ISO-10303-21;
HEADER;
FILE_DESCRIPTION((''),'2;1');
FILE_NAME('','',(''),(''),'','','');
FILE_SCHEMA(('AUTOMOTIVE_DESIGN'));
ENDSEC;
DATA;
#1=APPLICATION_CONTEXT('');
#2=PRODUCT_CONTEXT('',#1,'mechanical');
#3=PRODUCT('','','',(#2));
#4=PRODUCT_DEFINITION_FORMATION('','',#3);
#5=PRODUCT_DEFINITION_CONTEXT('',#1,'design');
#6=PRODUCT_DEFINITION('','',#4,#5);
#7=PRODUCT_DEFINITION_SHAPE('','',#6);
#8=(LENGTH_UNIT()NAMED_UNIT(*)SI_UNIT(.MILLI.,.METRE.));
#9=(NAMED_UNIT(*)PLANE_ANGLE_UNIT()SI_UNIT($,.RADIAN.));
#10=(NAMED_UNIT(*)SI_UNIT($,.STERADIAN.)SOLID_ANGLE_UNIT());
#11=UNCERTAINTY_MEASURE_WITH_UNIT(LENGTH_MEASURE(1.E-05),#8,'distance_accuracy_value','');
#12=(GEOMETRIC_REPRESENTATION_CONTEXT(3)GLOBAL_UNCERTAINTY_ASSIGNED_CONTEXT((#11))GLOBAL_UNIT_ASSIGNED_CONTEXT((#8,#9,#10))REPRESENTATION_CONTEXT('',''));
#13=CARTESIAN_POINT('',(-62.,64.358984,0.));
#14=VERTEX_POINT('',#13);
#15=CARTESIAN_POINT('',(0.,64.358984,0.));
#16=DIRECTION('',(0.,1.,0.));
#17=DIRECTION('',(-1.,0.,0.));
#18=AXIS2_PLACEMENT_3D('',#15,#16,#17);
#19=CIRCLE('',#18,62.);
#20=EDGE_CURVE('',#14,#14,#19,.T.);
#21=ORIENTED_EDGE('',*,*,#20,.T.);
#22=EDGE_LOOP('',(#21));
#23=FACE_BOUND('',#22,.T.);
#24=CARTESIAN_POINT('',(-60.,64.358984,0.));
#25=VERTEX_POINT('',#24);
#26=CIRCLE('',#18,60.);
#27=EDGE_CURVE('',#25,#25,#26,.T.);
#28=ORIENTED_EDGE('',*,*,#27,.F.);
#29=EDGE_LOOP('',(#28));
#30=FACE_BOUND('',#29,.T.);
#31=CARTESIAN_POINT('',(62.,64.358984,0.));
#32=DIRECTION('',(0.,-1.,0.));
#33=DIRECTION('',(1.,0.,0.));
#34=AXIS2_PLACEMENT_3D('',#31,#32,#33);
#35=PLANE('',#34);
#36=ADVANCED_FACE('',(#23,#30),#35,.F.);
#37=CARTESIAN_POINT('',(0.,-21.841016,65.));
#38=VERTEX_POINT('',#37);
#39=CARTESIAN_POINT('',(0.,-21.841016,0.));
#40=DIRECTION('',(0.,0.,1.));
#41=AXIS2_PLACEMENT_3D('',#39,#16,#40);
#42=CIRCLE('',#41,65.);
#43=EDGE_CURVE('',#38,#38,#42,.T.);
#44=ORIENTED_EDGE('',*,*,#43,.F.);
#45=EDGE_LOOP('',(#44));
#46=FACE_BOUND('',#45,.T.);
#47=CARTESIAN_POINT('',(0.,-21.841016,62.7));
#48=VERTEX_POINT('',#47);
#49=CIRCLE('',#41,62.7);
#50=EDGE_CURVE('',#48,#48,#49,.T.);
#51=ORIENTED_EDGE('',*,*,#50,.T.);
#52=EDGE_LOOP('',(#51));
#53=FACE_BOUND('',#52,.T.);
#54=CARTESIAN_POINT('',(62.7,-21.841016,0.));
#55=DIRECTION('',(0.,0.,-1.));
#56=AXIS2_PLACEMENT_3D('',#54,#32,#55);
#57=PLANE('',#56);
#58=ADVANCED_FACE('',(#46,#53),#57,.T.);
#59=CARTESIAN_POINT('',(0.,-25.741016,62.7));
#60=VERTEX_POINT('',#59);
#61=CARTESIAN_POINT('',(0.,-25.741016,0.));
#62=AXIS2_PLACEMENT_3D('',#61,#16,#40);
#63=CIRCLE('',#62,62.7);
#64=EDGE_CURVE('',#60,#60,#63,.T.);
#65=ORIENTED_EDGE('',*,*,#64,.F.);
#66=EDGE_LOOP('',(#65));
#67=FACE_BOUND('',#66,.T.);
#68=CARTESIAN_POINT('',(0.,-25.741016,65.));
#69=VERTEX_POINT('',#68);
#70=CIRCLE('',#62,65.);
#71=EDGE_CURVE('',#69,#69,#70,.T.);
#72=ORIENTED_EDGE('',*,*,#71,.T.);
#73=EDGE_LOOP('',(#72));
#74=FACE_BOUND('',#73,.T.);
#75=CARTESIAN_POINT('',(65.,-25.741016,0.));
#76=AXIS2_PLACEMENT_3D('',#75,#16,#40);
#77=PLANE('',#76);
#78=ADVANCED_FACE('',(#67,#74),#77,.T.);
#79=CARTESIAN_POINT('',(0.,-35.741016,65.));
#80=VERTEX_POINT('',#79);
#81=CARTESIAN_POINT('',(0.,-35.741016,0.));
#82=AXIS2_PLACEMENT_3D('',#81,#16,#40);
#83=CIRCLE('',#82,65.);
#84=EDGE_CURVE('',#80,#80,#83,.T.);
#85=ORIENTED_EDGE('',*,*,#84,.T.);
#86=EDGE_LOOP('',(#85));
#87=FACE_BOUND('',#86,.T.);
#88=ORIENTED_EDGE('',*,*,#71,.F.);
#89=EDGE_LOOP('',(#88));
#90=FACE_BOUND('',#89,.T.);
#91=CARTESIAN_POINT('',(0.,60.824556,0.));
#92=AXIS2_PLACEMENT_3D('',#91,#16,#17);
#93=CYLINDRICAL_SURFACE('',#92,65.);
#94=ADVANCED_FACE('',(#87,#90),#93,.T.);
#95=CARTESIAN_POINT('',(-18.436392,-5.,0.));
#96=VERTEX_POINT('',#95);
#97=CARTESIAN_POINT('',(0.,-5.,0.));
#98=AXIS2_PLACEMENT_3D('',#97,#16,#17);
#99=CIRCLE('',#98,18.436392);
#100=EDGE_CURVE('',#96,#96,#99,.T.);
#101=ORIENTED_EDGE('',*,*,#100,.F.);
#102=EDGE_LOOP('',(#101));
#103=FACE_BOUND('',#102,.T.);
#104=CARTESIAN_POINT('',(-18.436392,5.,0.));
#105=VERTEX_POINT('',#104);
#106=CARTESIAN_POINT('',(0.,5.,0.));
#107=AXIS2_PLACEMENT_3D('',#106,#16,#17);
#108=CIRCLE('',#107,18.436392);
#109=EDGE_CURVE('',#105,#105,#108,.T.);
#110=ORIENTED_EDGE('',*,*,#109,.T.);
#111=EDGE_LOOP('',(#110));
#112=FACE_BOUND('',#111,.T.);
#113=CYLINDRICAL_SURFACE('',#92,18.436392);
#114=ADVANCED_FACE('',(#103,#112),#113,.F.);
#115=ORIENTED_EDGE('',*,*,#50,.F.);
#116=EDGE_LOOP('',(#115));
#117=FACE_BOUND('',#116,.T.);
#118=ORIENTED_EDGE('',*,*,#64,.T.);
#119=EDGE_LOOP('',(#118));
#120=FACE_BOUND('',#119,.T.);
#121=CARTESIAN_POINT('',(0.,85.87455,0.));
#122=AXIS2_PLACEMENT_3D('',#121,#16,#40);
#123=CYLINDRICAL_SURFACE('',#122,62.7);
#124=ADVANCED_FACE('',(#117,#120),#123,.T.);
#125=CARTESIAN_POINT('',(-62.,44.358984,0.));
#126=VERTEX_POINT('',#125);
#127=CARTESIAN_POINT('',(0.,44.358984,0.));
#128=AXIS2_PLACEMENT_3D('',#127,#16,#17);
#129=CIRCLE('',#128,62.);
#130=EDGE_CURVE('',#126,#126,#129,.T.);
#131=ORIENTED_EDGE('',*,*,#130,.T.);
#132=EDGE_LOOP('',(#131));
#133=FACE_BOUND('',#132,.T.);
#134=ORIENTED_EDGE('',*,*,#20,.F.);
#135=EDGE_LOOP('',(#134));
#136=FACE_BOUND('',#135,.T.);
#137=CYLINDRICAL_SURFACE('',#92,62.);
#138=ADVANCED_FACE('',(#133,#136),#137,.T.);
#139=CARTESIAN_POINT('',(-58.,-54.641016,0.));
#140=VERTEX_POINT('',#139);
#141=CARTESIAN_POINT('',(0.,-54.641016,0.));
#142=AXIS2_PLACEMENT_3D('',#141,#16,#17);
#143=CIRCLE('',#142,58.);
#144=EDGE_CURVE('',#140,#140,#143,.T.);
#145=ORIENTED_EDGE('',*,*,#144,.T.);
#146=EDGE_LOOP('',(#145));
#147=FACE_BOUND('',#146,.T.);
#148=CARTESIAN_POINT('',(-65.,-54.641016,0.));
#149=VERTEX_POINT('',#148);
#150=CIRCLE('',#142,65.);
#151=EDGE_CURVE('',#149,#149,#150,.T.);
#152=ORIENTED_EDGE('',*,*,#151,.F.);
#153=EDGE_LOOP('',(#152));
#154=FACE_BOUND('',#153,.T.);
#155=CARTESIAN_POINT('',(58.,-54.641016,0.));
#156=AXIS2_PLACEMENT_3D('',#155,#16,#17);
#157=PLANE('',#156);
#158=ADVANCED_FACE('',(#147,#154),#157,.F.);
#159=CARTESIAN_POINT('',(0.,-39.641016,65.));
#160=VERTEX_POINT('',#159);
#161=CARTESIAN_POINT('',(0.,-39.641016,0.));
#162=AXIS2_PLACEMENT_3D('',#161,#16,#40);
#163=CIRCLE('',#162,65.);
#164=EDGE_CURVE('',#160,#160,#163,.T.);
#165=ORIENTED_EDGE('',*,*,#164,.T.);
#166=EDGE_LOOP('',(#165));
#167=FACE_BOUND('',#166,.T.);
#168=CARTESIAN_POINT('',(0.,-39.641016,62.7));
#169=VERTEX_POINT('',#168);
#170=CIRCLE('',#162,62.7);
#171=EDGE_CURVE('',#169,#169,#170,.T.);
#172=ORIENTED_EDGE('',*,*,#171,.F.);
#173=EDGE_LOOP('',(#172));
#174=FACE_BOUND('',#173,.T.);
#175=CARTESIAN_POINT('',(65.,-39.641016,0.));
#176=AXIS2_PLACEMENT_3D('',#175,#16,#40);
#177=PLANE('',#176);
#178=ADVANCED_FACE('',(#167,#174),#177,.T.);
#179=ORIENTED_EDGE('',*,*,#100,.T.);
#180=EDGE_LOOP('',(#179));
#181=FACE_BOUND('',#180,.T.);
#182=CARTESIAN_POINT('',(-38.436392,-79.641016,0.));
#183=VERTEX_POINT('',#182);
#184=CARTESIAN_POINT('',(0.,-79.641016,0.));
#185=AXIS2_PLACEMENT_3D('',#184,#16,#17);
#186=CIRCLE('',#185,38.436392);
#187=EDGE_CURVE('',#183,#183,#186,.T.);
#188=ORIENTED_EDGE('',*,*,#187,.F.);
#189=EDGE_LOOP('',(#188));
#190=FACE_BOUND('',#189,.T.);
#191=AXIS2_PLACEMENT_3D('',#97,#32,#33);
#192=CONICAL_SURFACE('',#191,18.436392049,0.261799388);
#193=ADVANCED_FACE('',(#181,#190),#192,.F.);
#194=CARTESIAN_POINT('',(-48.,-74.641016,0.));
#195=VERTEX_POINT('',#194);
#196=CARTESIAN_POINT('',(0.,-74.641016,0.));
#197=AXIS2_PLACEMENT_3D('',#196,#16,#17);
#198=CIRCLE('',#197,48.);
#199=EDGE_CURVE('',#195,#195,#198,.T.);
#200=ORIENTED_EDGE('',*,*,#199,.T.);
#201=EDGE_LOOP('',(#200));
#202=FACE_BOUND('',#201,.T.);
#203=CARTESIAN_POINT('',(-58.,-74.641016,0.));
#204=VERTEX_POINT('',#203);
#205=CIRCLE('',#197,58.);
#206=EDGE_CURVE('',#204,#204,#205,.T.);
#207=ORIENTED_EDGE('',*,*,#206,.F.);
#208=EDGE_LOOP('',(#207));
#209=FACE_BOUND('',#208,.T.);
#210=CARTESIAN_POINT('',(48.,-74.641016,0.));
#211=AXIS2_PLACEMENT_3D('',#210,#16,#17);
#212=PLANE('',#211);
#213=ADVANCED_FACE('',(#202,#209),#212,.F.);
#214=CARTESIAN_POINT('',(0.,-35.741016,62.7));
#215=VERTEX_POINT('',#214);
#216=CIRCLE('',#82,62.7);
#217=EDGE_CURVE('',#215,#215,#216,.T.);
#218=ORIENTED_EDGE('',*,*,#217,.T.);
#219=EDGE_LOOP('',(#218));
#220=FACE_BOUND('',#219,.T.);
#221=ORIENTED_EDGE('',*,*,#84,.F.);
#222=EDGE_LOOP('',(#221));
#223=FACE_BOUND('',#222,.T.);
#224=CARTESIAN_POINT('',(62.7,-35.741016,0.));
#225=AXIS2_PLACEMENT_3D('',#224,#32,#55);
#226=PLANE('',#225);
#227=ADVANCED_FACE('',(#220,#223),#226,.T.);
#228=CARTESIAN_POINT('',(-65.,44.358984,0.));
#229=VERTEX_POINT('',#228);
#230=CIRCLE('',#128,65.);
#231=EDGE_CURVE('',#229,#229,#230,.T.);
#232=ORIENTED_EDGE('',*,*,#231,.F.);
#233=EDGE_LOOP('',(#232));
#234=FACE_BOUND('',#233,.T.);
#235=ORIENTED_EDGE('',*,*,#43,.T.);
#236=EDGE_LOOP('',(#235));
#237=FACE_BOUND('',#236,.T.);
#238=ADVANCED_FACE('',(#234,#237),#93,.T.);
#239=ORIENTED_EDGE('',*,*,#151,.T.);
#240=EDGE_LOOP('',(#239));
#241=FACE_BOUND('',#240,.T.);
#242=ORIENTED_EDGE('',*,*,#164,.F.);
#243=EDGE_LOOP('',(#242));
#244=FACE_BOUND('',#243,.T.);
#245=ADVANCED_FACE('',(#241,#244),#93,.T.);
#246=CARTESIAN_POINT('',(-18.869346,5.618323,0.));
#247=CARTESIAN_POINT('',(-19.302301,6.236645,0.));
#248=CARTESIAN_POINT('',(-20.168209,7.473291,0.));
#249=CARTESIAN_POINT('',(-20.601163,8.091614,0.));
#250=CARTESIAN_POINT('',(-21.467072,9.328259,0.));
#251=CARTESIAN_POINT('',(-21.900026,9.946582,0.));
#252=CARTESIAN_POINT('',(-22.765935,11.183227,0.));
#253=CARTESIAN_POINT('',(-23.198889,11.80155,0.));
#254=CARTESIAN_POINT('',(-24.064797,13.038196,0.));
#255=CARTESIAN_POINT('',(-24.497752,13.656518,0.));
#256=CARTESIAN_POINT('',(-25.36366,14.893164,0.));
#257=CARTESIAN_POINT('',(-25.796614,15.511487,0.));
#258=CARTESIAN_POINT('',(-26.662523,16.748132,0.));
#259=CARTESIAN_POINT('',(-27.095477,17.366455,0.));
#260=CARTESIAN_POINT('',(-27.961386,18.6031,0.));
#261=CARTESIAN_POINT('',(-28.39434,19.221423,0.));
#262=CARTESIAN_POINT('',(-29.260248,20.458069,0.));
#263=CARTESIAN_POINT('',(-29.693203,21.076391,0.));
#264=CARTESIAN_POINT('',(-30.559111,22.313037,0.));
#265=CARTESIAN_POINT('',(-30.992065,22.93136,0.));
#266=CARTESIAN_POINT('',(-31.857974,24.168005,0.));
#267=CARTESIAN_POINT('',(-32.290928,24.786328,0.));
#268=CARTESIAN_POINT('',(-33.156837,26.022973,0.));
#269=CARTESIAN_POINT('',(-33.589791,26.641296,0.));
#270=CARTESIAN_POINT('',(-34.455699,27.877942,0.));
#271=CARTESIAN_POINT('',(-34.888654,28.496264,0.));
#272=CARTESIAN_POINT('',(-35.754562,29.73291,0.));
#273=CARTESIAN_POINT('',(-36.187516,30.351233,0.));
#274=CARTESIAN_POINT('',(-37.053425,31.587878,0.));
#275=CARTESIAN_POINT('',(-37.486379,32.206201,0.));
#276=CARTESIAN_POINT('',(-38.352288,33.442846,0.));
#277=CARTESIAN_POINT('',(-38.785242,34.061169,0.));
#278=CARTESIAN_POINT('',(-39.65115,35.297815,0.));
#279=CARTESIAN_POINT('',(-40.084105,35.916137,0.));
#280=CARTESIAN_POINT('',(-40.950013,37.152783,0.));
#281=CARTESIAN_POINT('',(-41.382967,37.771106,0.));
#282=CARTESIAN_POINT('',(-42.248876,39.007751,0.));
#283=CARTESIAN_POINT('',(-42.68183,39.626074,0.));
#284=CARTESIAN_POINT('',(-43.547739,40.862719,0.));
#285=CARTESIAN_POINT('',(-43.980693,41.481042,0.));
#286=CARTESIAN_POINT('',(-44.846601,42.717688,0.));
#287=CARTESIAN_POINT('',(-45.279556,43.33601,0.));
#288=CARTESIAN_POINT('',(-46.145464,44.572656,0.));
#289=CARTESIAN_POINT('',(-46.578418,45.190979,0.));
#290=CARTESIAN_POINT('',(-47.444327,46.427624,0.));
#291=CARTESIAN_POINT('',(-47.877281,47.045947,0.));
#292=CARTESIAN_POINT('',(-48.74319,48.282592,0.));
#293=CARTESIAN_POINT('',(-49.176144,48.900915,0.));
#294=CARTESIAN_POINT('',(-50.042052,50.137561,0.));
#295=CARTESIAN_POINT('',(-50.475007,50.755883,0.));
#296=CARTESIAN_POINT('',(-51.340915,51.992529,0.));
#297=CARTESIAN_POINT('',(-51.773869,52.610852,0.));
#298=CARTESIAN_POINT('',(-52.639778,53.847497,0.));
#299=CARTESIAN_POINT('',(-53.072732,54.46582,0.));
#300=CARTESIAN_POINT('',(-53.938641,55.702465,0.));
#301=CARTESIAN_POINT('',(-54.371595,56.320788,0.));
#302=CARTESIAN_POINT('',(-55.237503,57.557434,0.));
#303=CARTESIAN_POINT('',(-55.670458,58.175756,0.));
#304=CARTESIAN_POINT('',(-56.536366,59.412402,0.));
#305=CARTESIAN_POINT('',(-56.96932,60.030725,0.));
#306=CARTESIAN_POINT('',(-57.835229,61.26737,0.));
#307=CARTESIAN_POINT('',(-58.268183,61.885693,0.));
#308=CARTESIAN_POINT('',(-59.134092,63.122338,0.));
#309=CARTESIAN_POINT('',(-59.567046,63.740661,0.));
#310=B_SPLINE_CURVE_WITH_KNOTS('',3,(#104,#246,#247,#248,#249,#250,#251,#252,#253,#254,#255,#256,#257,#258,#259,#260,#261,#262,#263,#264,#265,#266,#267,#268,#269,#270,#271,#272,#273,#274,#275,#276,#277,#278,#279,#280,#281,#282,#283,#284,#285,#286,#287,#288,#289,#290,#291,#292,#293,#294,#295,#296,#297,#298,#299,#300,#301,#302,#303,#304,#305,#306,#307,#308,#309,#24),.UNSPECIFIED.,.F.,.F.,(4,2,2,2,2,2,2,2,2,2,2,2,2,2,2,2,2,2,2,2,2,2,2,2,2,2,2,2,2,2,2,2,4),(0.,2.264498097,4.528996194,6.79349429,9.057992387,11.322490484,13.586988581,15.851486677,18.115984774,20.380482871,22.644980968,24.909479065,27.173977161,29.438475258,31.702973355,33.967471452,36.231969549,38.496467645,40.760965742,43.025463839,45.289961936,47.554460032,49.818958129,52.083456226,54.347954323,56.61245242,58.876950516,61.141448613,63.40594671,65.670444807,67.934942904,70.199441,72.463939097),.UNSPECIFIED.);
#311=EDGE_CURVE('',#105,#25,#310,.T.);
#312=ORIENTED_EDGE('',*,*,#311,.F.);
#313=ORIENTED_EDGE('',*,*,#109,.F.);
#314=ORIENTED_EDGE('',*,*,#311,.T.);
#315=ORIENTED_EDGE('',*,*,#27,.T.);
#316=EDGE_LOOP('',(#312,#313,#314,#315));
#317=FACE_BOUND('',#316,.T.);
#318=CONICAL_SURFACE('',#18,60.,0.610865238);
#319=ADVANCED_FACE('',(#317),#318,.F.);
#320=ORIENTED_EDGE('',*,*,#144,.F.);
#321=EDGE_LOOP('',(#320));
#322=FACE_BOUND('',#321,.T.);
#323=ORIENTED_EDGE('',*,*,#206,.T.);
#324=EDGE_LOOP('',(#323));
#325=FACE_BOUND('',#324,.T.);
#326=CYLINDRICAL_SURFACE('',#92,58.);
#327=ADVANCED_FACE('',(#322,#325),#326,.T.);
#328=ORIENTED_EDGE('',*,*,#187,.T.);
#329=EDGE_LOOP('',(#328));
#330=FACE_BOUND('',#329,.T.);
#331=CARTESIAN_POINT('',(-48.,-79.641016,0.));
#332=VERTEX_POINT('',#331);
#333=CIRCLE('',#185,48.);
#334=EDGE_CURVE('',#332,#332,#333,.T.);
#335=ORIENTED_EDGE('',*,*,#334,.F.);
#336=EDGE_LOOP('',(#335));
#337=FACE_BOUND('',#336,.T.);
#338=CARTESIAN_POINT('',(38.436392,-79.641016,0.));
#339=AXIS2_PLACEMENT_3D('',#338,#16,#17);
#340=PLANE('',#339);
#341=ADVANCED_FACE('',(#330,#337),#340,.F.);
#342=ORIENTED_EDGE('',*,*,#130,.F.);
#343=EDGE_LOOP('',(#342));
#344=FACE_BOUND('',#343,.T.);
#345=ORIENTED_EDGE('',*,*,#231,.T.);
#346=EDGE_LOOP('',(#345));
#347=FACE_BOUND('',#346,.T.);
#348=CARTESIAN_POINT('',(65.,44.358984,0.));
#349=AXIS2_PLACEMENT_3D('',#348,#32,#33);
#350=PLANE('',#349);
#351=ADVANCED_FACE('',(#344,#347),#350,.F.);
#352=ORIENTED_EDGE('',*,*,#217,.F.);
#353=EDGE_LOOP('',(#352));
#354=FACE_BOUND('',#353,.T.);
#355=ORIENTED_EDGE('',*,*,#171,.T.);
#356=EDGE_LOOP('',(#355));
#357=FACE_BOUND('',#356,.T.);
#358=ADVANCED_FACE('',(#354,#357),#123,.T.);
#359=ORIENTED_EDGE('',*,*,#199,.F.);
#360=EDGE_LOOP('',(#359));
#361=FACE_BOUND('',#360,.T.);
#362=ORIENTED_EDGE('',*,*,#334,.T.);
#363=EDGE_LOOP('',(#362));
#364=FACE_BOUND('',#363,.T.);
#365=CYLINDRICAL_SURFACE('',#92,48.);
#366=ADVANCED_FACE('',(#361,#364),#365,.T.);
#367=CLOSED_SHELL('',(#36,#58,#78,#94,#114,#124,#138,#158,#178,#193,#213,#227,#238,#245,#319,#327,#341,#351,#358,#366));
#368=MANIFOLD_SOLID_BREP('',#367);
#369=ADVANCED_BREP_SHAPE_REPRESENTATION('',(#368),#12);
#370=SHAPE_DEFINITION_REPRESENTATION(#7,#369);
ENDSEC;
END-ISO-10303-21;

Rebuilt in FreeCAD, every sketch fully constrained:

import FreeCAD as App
import Part
import Sketcher

V = App.Vector
Q = App.Units.Quantity


def add_polygon(sketch, points):
    """Adds a closed chain of lines whose ends are joined by coincident constraints."""
    first, n = sketch.GeometryCount, len(points)
    for a, b in zip(points, points[1:] + points[:1]):
        sketch.addGeometry(Part.LineSegment(App.Vector(*a, 0), App.Vector(*b, 0)), False)
    for i in range(n):
        sketch.addConstraint(Sketcher.Constraint("Coincident", first + i, 2, first + (i + 1) % n, 1))

doc = App.newDocument("Part")
body = doc.addObject("PartDesign::Body", "Body")

# Sketch on XY plane
sketch1 = body.newObject("Sketcher::SketchObject", "Sketch")
sketch1.AttachmentSupport = (doc.getObject("XY_Plane"), [""])
sketch1.MapMode = "FlatFace"
add_polygon(sketch1, [(60, 64.4), (18.4, 5), (18.4, -5), (38.4, -79.6), (48, -79.6), (48, -74.6), (58, -74.6), (58, -54.6), (65, -54.6), (65, 44.4), (62, 44.4), (62, 64.4)])  # lines 0-11
sketch1.addConstraint(Sketcher.Constraint("Vertical", 1))
sketch1.addConstraint(Sketcher.Constraint("Horizontal", 3))
sketch1.addConstraint(Sketcher.Constraint("Vertical", 4))
sketch1.addConstraint(Sketcher.Constraint("Horizontal", 5))
sketch1.addConstraint(Sketcher.Constraint("Vertical", 6))
sketch1.addConstraint(Sketcher.Constraint("Horizontal", 7))
sketch1.addConstraint(Sketcher.Constraint("Vertical", 8))
sketch1.addConstraint(Sketcher.Constraint("Horizontal", 9))
sketch1.addConstraint(Sketcher.Constraint("Vertical", 10))
sketch1.addConstraint(Sketcher.Constraint("Horizontal", 11))
sketch1.addConstraint(Sketcher.Constraint("Equal", 5, 1))
sketch1.addConstraint(Sketcher.Constraint("Equal", 6, 10))
sketch1.addConstraint(Sketcher.Constraint("DistanceX", 5, 1, 5, 2, Q("10 mm")))
sketch1.addConstraint(Sketcher.Constraint("DistanceX", 7, 1, 7, 2, Q("7 mm")))
sketch1.addConstraint(Sketcher.Constraint("DistanceX", 9, 2, 9, 1, Q("3 mm")))
sketch1.addConstraint(Sketcher.Constraint("DistanceX", 11, 2, 11, 1, Q("2 mm")))
sketch1.addConstraint(Sketcher.Constraint("DistanceY", 4, 1, 4, 2, Q("5 mm")))
sketch1.addConstraint(Sketcher.Constraint("DistanceY", 6, 1, 6, 2, Q("20 mm")))
sketch1.addConstraint(Sketcher.Constraint("DistanceY", 8, 1, 8, 2, Q("99 mm")))
sketch1.addConstraint(Sketcher.Constraint("Angle", 0, Q("-125 deg")))
sketch1.addConstraint(Sketcher.Constraint("Angle", 2, Q("-75 deg")))
sketch1.addConstraint(Sketcher.Constraint("DistanceY", -1, 1, 0, 2, Q("5 mm")))
sketch1.addConstraint(Sketcher.Constraint("DistanceX", -1, 1, 3, 2, Q("48 mm")))
sketch1.addConstraint(Sketcher.Constraint("DistanceX", 1, 2, 2, 2, Q("20 mm")))
revolution = body.newObject("PartDesign::Revolution", "Revolution")
revolution.Profile = sketch1
revolution.ReferenceAxis = (sketch1, ["V_Axis"])
revolution.Angle = 360

# Sketch on XY plane
sketch2 = body.newObject("Sketcher::SketchObject", "Sketch001")
sketch2.AttachmentSupport = (doc.getObject("XY_Plane"), [""])
sketch2.MapMode = "FlatFace"
add_polygon(sketch2, [(62.7, -35.7), (62.7, -39.6), (65, -39.6), (65, -35.7)])  # lines 0-3
add_polygon(sketch2, [(62.7, -21.8), (62.7, -25.7), (65, -25.7), (65, -21.8)])  # lines 4-7
sketch2.addConstraint(Sketcher.Constraint("Vertical", 0))
sketch2.addConstraint(Sketcher.Constraint("Horizontal", 1))
sketch2.addConstraint(Sketcher.Constraint("Vertical", 2))
sketch2.addConstraint(Sketcher.Constraint("Horizontal", 3))
sketch2.addConstraint(Sketcher.Constraint("Vertical", 4))
sketch2.addConstraint(Sketcher.Constraint("Horizontal", 5))
sketch2.addConstraint(Sketcher.Constraint("Vertical", 6))
sketch2.addConstraint(Sketcher.Constraint("Horizontal", 7))
sketch2.addConstraint(Sketcher.Constraint("Vertical", 3, 2, 4, 2))
sketch2.addConstraint(Sketcher.Constraint("Vertical", 2, 2, 5, 2))
sketch2.addConstraint(Sketcher.Constraint("Equal", 2, 4))
sketch2.addConstraint(Sketcher.Constraint("DistanceX", 1, 1, 1, 2, Q("2.3 mm")))
sketch2.addConstraint(Sketcher.Constraint("DistanceY", 0, 2, 0, 1, Q("3.9 mm")))
sketch2.addConstraint(Sketcher.Constraint("DistanceX", -1, 1, 1, 2, Q("65 mm")))
sketch2.addConstraint(Sketcher.Constraint("DistanceY", 3, 2, 4, 2, Q("10 mm")))
sketch2.addConstraint(Sketcher.Constraint("DistanceY", 0, 2, -1, 1, Q("39.641016 mm")))
groove = body.newObject("PartDesign::Groove", "Groove")
groove.Profile = sketch2
groove.ReferenceAxis = (sketch2, ["V_Axis"])
groove.Angle = 360

doc.recompute()
